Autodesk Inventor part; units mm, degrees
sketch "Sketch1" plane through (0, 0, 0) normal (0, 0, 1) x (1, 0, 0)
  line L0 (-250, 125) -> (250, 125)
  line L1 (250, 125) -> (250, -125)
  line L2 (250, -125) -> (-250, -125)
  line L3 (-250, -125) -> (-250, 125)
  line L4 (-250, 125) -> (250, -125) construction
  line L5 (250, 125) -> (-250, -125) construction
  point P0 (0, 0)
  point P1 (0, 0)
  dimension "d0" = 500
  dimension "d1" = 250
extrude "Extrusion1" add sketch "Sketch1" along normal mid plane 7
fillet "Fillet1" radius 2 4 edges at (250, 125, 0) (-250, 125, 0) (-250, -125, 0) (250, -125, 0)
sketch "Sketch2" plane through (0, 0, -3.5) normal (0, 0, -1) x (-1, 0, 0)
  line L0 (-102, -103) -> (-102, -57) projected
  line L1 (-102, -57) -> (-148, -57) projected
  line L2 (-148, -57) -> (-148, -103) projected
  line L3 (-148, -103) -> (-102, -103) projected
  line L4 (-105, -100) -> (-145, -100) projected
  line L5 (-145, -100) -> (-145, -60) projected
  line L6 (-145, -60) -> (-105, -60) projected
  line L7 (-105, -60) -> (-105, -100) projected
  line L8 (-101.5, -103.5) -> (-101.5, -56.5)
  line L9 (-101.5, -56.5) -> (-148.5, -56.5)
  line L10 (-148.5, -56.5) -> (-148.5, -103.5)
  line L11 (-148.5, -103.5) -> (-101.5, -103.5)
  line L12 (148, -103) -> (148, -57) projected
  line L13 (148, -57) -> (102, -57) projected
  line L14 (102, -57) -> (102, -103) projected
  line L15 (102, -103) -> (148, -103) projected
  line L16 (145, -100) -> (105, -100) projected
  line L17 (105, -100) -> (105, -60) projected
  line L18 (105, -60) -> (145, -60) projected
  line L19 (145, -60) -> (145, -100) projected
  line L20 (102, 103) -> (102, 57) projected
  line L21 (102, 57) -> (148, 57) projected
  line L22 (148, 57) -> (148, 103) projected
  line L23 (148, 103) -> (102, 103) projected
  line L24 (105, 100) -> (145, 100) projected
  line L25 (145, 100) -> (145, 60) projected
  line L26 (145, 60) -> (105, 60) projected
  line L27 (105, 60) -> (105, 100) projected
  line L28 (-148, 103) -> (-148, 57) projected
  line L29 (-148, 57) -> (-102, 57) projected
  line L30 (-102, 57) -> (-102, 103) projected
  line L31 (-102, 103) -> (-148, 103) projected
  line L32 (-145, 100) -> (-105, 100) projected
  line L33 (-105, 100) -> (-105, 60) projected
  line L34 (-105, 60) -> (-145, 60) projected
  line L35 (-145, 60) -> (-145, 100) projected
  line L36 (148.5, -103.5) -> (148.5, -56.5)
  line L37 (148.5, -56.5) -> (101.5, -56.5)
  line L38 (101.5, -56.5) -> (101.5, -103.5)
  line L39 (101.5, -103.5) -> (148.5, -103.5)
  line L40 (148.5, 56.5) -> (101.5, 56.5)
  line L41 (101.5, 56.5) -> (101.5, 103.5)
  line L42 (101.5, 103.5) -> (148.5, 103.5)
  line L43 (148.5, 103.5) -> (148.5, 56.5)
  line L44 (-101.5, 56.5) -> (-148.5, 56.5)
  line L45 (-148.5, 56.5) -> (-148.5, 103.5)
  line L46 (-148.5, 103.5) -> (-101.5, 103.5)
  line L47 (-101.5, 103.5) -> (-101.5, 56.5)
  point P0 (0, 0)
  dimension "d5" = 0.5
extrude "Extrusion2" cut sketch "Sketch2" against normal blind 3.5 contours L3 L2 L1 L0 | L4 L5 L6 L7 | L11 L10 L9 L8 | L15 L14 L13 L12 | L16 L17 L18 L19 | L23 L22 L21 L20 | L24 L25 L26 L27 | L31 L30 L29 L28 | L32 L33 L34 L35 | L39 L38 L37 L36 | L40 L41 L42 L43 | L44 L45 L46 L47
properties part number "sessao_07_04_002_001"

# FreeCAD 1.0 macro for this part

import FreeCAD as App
import Part
import Sketcher
Q = App.Units.Quantity


def edges_at(feature, points):
    """Names of the edges that pass closest to the given points."""
    edges = feature.Shape.Edges
    near = lambda p: min(range(len(edges)), key=lambda i: edges[i].distToShape(Part.Vertex(*p))[0])
    return sorted({f"Edge{near(p) + 1}" for p in points})


def add_polygon(sketch, points):
    """Adds a closed chain of lines whose ends are joined by coincident constraints."""
    first, n = sketch.GeometryCount, len(points)
    for a, b in zip(points, points[1:] + points[:1]):
        sketch.addGeometry(Part.LineSegment(App.Vector(*a, 0), App.Vector(*b, 0)), False)
    for i in range(n):
        sketch.addConstraint(Sketcher.Constraint("Coincident", first + i, 2, first + (i + 1) % n, 1))

doc = App.newDocument("Part")
body = doc.addObject("PartDesign::Body", "Body")

# Sketch on XY plane
sketch1 = body.newObject("Sketcher::SketchObject", "Sketch")
sketch1.AttachmentSupport = (doc.getObject("XY_Plane"), [""])
sketch1.MapMode = "FlatFace"
add_polygon(sketch1, [(250, 125), (-250, 125), (-250, -125), (250, -125)])  # lines 0-3
sketch1.addConstraint([
    Sketcher.Constraint("Horizontal", 0),
    Sketcher.Constraint("Vertical", 1),
    Sketcher.Constraint("Horizontal", 2),
    Sketcher.Constraint("Vertical", 3),
    Sketcher.Constraint("Symmetric", 0, 2, 2, 2, -1, 1),
    Sketcher.Constraint("DistanceX", 0, 2, 0, 1, Q("500 mm")),
    Sketcher.Constraint("DistanceY", 1, 2, 1, 1, Q("250 mm")),
])
pad1 = body.newObject("PartDesign::Pad", "Pad")
pad1.Profile = sketch1
pad1.Length = 7
pad1.Midplane = True
doc.recompute()

fillet = body.newObject("PartDesign::Fillet", "Fillet")
fillet.Base = (pad1, edges_at(pad1, [
    (250, 125, 0),
    (-250, 125, 0),
    (-250, -125, 0),
    (250, -125, 0),
]))
fillet.Radius = 2

# Sketch on XY plane
sketch2 = body.newObject("Sketcher::SketchObject", "Sketch001")
sketch2.AttachmentSupport = (doc.getObject("XY_Plane"), [""])
sketch2.MapMode = "FlatFace"
sketch2.AttachmentOffset = App.Placement(App.Vector(0, 0, -3.5), App.Rotation())
add_polygon(sketch2, [(148, -104), (102, -104), (102, -56), (148, -56)])  # lines 0-3
add_polygon(sketch2, [(-102, -104), (-148, -104), (-148, -56), (-102, -56)])  # lines 4-7
add_polygon(sketch2, [(-102, 56), (-148, 56), (-148, 104), (-102, 104)])  # lines 8-11
add_polygon(sketch2, [(148, 56), (102, 56), (102, 104), (148, 104)])  # lines 12-15
sketch2.addConstraint([
    Sketcher.Constraint("Horizontal", 0),
    Sketcher.Constraint("Vertical", 1),
    Sketcher.Constraint("Horizontal", 2),
    Sketcher.Constraint("Vertical", 3),
    Sketcher.Constraint("Horizontal", 4),
    Sketcher.Constraint("Vertical", 5),
    Sketcher.Constraint("Horizontal", 6),
    Sketcher.Constraint("Vertical", 7),
    Sketcher.Constraint("Horizontal", 8),
    Sketcher.Constraint("Vertical", 9),
    Sketcher.Constraint("Horizontal", 10),
    Sketcher.Constraint("Vertical", 11),
    Sketcher.Constraint("Horizontal", 12),
    Sketcher.Constraint("Vertical", 13),
    Sketcher.Constraint("Horizontal", 14),
    Sketcher.Constraint("Vertical", 15),
    Sketcher.Constraint("Symmetric", 2, 2, 8, 2, -1, 1),
    Sketcher.Constraint("Symmetric", 0, 2, 10, 2, -1, 1),
    Sketcher.Constraint("Symmetric", 6, 2, 12, 2, -1, 1),
    Sketcher.Constraint("Symmetric", 4, 2, 14, 2, -1, 1),
    Sketcher.Constraint("Symmetric", 3, 2, 4, 2, -2),
    Sketcher.Constraint("Symmetric", 1, 2, 6, 2, -2),
    Sketcher.Constraint("Equal", 14, 1),
    Sketcher.Constraint("DistanceX", 0, 2, 0, 1, Q("47 mm")),
    Sketcher.Constraint("DistanceX", 4, 2, 0, 2, Q("250 mm")),
    Sketcher.Constraint("DistanceY", 5, 2, 8, 2, Q("113 mm")),
])
pocket1 = body.newObject("PartDesign::Pocket", "Pocket")
pocket1.Profile = sketch2
pocket1.Length = 3.5
pocket1.Reversed = True

doc.recompute()
